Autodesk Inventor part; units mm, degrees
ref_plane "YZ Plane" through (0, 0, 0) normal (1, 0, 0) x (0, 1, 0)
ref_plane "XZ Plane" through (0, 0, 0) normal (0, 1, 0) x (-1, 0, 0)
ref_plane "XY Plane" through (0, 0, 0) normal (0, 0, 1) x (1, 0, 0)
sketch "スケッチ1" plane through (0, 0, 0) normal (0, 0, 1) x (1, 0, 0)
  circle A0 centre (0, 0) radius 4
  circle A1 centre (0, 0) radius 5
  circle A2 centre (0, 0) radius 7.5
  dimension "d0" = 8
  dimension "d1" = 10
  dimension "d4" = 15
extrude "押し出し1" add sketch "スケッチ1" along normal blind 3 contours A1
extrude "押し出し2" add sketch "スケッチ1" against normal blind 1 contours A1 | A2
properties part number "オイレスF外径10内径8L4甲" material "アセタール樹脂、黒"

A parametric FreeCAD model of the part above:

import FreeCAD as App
import Part
import Sketcher
Q = App.Units.Quantity

doc = App.newDocument("Part")
body = doc.addObject("PartDesign::Body", "Body")

# Sketch on XY plane
sketch1 = body.newObject("Sketcher::SketchObject", "Sketch")
sketch1.AttachmentSupport = (doc.getObject("XY_Plane"), [""])
sketch1.MapMode = "FlatFace"
sketch1.addGeometry(Part.Circle(App.Vector(0, 0, 0), App.Vector(0, 0, 1), 5), False)
sketch1.addGeometry(Part.Circle(App.Vector(0, 0, 0), App.Vector(0, 0, 1), 4), False)
sketch1.addConstraint(Sketcher.Constraint("Coincident", 0, 3, -1, 1))
sketch1.addConstraint(Sketcher.Constraint("Coincident", 1, 3, -1, 1))
sketch1.addConstraint(Sketcher.Constraint("Diameter", 0, Q("10 mm")))
sketch1.addConstraint(Sketcher.Constraint("Diameter", 1, Q("8 mm")))
pad1 = body.newObject("PartDesign::Pad", "Pad")
pad1.Profile = sketch1
pad1.Length = 3

# Sketch on XY plane
sketch2 = body.newObject("Sketcher::SketchObject", "Sketch001")
sketch2.AttachmentSupport = (doc.getObject("XY_Plane"), [""])
sketch2.MapMode = "FlatFace"
sketch2.addGeometry(Part.Circle(App.Vector(0, 0, 0), App.Vector(0, 0, 1), 7.5), False)
sketch2.addGeometry(Part.Circle(App.Vector(0, 0, 0), App.Vector(0, 0, 1), 4), False)
sketch2.addConstraint(Sketcher.Constraint("Coincident", 0, 3, -1, 1))
sketch2.addConstraint(Sketcher.Constraint("Coincident", 1, 3, -1, 1))
sketch2.addConstraint(Sketcher.Constraint("Diameter", 0, Q("15 mm")))
sketch2.addConstraint(Sketcher.Constraint("Diameter", 1, Q("8 mm")))
pad2 = body.newObject("PartDesign::Pad", "Pad001")
pad2.Profile = sketch2
pad2.Length = 1
pad2.Reversed = True

doc.recompute()
